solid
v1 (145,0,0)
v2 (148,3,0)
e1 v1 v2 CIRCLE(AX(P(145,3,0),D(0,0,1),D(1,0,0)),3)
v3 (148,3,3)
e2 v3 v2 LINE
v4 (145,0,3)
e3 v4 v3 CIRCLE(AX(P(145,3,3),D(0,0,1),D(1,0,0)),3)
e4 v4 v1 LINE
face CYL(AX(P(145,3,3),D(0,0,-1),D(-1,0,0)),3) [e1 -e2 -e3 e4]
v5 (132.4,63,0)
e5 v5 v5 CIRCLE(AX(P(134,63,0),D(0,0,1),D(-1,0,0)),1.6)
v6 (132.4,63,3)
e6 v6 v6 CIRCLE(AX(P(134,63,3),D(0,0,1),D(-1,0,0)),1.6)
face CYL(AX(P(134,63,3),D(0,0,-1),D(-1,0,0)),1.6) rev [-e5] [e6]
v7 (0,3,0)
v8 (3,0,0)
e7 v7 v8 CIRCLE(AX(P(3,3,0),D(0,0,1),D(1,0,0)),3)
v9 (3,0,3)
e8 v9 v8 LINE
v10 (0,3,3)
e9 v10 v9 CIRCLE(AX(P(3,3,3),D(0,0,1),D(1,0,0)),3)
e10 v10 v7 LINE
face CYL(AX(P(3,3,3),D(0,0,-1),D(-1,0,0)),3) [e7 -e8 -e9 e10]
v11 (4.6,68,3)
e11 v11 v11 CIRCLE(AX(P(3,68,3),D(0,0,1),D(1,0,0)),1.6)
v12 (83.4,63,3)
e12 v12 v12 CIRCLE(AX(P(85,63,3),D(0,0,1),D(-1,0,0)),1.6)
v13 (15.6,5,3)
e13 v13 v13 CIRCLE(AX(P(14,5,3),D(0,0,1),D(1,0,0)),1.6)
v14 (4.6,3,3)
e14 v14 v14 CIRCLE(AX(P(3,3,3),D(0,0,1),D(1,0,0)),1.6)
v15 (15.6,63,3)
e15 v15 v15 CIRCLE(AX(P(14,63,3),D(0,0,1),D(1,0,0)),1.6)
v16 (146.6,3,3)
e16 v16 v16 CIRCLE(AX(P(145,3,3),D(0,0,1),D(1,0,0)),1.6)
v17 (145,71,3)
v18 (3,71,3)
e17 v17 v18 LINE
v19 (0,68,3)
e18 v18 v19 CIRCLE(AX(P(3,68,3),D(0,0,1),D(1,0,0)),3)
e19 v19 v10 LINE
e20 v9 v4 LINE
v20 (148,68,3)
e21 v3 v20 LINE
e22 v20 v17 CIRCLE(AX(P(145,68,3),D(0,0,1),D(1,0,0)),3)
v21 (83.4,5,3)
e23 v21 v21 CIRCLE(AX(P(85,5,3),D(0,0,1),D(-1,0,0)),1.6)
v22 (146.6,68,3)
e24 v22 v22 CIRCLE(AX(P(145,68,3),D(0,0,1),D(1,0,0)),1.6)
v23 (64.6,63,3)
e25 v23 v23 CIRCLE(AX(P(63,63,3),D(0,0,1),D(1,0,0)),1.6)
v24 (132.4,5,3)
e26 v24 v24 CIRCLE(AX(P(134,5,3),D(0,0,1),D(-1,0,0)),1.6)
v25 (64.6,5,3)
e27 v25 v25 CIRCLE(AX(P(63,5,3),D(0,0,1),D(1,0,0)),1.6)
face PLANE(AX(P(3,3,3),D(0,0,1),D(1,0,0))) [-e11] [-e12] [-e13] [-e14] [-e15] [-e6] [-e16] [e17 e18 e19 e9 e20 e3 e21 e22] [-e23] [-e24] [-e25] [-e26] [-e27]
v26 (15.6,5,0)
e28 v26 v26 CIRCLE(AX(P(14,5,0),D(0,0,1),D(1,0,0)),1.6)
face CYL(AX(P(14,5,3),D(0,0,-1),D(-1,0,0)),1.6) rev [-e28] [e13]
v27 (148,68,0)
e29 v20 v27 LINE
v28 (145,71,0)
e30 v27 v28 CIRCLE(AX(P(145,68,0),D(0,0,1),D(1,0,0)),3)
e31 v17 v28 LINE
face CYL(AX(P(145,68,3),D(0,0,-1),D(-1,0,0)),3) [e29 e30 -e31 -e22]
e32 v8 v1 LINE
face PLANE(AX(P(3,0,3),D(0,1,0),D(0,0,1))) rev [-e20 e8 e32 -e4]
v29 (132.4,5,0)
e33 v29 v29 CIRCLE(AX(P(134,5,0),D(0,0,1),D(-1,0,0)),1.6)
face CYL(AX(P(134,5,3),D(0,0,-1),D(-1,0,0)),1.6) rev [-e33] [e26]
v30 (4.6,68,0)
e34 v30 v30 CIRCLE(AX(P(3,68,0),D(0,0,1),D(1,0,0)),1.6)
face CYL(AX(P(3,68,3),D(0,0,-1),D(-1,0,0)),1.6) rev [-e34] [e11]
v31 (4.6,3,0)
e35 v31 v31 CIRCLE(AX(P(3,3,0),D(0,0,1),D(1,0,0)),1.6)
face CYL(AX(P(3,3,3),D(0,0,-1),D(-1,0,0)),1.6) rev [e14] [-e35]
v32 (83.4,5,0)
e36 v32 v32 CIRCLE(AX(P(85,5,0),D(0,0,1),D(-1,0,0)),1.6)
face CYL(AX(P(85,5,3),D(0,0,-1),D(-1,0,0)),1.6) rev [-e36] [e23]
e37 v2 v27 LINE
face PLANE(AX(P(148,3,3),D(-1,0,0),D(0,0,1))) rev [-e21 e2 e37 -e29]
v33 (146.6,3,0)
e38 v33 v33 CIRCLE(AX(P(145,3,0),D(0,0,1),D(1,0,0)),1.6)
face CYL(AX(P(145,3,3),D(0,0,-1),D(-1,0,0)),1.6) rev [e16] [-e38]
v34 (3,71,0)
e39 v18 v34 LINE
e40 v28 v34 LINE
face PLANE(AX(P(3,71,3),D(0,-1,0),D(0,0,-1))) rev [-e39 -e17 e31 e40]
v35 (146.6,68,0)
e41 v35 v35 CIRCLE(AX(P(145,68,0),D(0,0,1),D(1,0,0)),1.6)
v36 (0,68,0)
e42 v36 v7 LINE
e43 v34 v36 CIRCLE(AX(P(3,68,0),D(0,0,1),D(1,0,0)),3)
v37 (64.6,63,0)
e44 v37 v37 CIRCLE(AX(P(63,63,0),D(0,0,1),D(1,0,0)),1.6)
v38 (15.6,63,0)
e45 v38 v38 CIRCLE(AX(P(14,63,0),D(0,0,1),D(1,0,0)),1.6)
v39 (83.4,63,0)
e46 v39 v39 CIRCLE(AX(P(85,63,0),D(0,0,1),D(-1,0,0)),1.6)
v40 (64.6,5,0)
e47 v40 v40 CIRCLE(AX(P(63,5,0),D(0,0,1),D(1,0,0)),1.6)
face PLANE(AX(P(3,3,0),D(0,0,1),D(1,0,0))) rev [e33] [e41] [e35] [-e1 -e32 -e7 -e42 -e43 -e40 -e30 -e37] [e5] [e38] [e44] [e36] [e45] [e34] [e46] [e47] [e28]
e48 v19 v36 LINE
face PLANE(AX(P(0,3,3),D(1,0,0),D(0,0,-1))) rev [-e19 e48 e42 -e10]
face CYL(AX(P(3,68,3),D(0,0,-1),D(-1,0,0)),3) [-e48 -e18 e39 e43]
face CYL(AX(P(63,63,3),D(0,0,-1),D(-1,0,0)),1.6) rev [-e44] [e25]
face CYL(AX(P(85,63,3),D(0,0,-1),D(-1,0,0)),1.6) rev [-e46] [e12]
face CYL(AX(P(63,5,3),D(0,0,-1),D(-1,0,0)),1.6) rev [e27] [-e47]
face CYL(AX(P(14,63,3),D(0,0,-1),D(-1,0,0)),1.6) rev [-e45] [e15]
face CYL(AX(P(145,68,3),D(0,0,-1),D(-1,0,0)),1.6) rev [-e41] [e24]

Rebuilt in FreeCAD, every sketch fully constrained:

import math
import FreeCAD as App
import Part
import Sketcher

V = App.Vector

doc = App.newDocument("Part")
body = doc.addObject("PartDesign::Body", "Body")

sketch1 = body.newObject("Sketcher::SketchObject", "Sketch")
sketch1.AttachmentSupport = (doc.getObject("XY_Plane"), [""])
sketch1.MapMode = "FlatFace"
sketch1.addGeometry([
    Part.LineSegment(V(3, 0, 0), V(145, 0, 0)),
    Part.ArcOfCircle(Part.Circle(V(145, 3, 0), V(0, 0, 1), 3), math.radians(-90), math.radians(0)),
    Part.LineSegment(V(148, 3, 0), V(148, 68, 0)),
    Part.ArcOfCircle(Part.Circle(V(145, 68, 0), V(0, 0, 1), 3), math.radians(0), math.radians(90)),
    Part.LineSegment(V(145, 71, 0), V(3, 71, 0)),
    Part.ArcOfCircle(Part.Circle(V(3, 68, 0), V(0, 0, 1), 3), math.radians(90), math.radians(180)),
    Part.LineSegment(V(0, 68, 0), V(0, 3, 0)),
    Part.ArcOfCircle(Part.Circle(V(3, 3, 0), V(0, 0, 1), 3), math.radians(180), math.radians(270)),
    Part.Circle(V(3, 3, 0), V(0, 0, 1), 1.6),
    Part.Circle(V(14, 5, 0), V(0, 0, 1), 1.6),
    Part.Circle(V(63, 5, 0), V(0, 0, 1), 1.6),
    Part.Circle(V(85, 5, 0), V(0, 0, 1), 1.6),
    Part.Circle(V(134, 5, 0), V(0, 0, 1), 1.6),
    Part.Circle(V(145, 3, 0), V(0, 0, 1), 1.6),
    Part.Circle(V(14, 63, 0), V(0, 0, 1), 1.6),
    Part.Circle(V(3, 68, 0), V(0, 0, 1), 1.6),
    Part.Circle(V(63, 63, 0), V(0, 0, 1), 1.6),
    Part.Circle(V(85, 63, 0), V(0, 0, 1), 1.6),
    Part.Circle(V(134, 63, 0), V(0, 0, 1), 1.6),
    Part.Circle(V(145, 68, 0), V(0, 0, 1), 1.6),
], False)
sketch1.addConstraint([
    Sketcher.Constraint("Tangent", 0, 2, 1, 1),
    Sketcher.Constraint("Tangent", 1, 2, 2, 1),
    Sketcher.Constraint("Tangent", 2, 2, 3, 1),
    Sketcher.Constraint("Tangent", 3, 2, 4, 1),
    Sketcher.Constraint("Tangent", 4, 2, 5, 1),
    Sketcher.Constraint("Tangent", 5, 2, 6, 1),
    Sketcher.Constraint("Tangent", 6, 2, 7, 1),
    Sketcher.Constraint("Tangent", 7, 2, 0, 1),
    Sketcher.Constraint("Horizontal", 0),
    Sketcher.Constraint("Vertical", 2),
    Sketcher.Constraint("Horizontal", 4),
    Sketcher.Constraint("Vertical", 6),
    Sketcher.Constraint("Coincident", 8, 3, 7, 3),
    Sketcher.Constraint("Coincident", 13, 3, 1, 3),
    Sketcher.Constraint("Coincident", 15, 3, 5, 3),
    Sketcher.Constraint("Coincident", 19, 3, 3, 3),
    Sketcher.Constraint("Equal", 1, 3),
    Sketcher.Constraint("Equal", 3, 5),
    Sketcher.Constraint("Equal", 5, 7),
    Sketcher.Constraint("Equal", 8, 9),
    Sketcher.Constraint("Equal", 9, 10),
    Sketcher.Constraint("Equal", 10, 11),
    Sketcher.Constraint("Equal", 11, 12),
    Sketcher.Constraint("Equal", 12, 13),
    Sketcher.Constraint("Equal", 13, 14),
    Sketcher.Constraint("Equal", 14, 15),
    Sketcher.Constraint("Equal", 15, 16),
    Sketcher.Constraint("Equal", 16, 17),
    Sketcher.Constraint("Equal", 17, 18),
    Sketcher.Constraint("Equal", 18, 19),
    Sketcher.Constraint("PointOnObject", 0, 2, -1),
    Sketcher.Constraint("PointOnObject", 5, 2, -2),
    Sketcher.Constraint("Horizontal", 9, 3, 10, 3),
    Sketcher.Constraint("Horizontal", 10, 3, 11, 3),
    Sketcher.Constraint("Horizontal", 11, 3, 12, 3),
    Sketcher.Constraint("Horizontal", 14, 3, 16, 3),
    Sketcher.Constraint("Horizontal", 16, 3, 17, 3),
    Sketcher.Constraint("Horizontal", 17, 3, 18, 3),
    Sketcher.Constraint("Vertical", 9, 3, 14, 3),
    Sketcher.Constraint("Vertical", 10, 3, 16, 3),
    Sketcher.Constraint("Vertical", 11, 3, 17, 3),
    Sketcher.Constraint("Vertical", 12, 3, 18, 3),
    Sketcher.Constraint("Radius", 1, 3.0),
    Sketcher.Constraint("Diameter", 8, 3.2),
    Sketcher.Constraint("DistanceX", 0, 1, 0, 2, 142.0),
    Sketcher.Constraint("DistanceY", 2, 1, 2, 2, 65.0),
    Sketcher.Constraint("DistanceX", -1, 1, 9, 3, 14.0),
    Sketcher.Constraint("DistanceY", -1, 1, 9, 3, 5.0),
    Sketcher.Constraint("DistanceX", -1, 1, 10, 3, 63.0),
    Sketcher.Constraint("DistanceX", -1, 1, 11, 3, 85.0),
    Sketcher.Constraint("DistanceX", -1, 1, 12, 3, 134.0),
    Sketcher.Constraint("DistanceY", -1, 1, 14, 3, 63.0),
])
pad1 = body.newObject("PartDesign::Pad", "Pad")
pad1.Profile = sketch1
pad1.Length = 3

doc.recompute()
